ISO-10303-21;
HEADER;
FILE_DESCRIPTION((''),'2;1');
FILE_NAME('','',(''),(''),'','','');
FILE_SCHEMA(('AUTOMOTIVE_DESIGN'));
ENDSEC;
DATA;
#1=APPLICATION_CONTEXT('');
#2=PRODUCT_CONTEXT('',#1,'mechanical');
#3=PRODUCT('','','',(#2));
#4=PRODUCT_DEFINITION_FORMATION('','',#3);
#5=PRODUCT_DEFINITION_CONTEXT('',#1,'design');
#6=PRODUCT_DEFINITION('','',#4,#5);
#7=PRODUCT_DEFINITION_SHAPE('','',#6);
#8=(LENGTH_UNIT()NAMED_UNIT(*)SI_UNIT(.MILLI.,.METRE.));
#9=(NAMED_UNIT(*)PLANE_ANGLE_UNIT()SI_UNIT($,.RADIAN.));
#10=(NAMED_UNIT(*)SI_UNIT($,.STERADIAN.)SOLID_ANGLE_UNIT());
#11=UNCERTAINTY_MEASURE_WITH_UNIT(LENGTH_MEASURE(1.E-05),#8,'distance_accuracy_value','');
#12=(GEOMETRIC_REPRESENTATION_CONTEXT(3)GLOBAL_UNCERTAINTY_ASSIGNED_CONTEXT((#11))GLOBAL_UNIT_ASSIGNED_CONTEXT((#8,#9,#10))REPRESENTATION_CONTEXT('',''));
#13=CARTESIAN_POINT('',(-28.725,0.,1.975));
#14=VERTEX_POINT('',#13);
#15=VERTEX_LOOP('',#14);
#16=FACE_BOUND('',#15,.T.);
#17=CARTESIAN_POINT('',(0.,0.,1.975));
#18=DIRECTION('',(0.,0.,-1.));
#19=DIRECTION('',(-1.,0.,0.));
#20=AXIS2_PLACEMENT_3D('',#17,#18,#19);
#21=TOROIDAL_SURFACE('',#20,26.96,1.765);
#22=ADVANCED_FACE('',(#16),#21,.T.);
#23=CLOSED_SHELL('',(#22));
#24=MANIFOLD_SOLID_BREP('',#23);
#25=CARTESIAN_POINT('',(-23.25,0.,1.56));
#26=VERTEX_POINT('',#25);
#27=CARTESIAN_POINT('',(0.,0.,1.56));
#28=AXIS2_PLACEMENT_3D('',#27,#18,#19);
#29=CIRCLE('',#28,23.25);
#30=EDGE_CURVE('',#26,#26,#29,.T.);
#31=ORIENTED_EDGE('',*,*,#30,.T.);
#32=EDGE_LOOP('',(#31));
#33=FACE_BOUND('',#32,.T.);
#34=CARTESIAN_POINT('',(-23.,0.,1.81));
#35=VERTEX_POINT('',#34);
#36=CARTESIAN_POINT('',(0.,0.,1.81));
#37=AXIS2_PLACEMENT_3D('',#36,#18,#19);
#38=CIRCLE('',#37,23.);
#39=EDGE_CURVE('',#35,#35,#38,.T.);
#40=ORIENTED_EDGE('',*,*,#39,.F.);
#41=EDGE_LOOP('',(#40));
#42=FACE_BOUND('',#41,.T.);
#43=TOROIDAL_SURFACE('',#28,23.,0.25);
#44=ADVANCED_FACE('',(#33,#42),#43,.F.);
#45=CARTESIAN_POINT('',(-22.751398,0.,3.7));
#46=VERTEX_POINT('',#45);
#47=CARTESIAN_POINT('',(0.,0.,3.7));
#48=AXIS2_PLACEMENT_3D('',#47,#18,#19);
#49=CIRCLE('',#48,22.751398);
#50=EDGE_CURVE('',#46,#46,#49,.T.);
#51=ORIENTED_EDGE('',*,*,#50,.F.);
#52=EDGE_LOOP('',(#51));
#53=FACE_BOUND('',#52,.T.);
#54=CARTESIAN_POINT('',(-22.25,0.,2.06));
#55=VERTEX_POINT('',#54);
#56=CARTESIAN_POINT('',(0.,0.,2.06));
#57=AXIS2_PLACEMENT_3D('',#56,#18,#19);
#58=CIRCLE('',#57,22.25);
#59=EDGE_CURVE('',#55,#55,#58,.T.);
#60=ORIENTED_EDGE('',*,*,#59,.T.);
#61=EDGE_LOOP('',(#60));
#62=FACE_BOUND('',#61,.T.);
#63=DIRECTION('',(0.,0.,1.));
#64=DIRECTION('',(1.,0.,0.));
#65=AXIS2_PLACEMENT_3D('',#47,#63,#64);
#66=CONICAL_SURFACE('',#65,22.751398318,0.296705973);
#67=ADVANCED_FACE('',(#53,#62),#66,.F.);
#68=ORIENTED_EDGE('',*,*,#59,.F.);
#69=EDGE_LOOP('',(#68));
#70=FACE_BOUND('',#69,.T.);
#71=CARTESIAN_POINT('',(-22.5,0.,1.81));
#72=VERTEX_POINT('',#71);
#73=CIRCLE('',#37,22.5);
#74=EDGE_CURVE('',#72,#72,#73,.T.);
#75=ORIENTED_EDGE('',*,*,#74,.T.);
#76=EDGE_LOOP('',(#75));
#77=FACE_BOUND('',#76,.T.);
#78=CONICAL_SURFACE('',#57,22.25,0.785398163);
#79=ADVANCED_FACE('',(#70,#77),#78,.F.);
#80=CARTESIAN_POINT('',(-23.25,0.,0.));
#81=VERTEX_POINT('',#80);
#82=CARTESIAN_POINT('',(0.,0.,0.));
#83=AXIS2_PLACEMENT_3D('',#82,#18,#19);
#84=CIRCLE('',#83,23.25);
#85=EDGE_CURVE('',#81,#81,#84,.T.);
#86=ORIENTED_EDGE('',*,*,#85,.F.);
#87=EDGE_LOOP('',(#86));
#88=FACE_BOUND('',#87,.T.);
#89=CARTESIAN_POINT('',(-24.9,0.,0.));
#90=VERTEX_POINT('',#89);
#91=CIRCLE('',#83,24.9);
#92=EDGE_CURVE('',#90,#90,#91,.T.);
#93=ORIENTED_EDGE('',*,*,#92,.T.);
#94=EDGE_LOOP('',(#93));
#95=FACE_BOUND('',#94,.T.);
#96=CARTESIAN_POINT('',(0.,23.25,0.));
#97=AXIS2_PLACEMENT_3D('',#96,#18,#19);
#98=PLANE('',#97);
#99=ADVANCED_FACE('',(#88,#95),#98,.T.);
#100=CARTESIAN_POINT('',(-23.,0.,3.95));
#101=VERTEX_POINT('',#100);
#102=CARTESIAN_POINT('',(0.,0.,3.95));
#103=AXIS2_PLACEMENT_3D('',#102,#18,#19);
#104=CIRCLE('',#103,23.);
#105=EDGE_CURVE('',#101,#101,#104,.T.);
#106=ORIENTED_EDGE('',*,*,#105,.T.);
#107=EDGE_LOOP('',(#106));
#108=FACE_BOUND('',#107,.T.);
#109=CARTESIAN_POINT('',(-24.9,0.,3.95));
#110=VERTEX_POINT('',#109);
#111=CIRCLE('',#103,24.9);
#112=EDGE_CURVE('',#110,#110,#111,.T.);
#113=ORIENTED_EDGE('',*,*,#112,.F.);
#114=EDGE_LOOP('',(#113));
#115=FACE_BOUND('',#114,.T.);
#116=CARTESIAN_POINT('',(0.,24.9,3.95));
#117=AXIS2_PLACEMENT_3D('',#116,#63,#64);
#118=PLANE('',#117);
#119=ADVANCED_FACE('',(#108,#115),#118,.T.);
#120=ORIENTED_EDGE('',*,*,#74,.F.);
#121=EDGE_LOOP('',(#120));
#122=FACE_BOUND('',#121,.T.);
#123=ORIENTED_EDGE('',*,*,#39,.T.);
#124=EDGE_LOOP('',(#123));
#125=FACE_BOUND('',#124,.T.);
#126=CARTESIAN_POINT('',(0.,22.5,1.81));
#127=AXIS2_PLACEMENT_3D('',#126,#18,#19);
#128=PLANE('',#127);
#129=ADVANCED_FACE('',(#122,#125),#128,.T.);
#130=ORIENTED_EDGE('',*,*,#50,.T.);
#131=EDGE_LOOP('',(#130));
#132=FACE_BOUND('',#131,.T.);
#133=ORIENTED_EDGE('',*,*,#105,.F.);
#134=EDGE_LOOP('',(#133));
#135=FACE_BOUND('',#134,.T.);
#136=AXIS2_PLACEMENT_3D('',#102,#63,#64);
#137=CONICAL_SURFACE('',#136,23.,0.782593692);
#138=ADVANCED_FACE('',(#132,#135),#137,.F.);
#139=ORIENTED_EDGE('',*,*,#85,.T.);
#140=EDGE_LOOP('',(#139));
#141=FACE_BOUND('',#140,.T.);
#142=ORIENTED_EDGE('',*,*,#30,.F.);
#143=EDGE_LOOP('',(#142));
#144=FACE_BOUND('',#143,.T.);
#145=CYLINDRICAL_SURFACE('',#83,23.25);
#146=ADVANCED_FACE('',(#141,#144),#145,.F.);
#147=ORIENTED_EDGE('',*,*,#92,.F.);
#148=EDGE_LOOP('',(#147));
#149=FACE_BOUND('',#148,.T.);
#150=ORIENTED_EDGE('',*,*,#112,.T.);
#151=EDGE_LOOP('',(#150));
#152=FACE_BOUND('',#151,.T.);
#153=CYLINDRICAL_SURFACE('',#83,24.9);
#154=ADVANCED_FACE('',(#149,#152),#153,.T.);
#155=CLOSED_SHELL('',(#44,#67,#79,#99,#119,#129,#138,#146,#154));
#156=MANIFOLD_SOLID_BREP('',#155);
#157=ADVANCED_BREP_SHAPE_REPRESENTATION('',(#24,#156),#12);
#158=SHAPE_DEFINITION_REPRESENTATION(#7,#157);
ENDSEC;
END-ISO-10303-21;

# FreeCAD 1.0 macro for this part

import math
import FreeCAD as App
import Part
import Sketcher

V = App.Vector
Q = App.Units.Quantity

doc = App.newDocument("Part")
params = doc.addObject("Spreadsheet::Sheet", "Params")
for row, (alias, value) in enumerate([
    ("sketch1_radius", "0.25 mm"),
    ("sketch1_width", "1.9 mm"),
    ("sketch1_width2", "0.5 mm"),
    ("sketch1_height", "3.95 mm"),
    ("sketch1_height2", "1.56 mm"),
    ("revolution_angle", "360 deg"),
    ("sketch2_diameter", "3.53 mm"),
    ("revolution2_angle", "360 deg"),
], start=1):
    params.set(f"A{row}", alias)
    params.set(f"B{row}", "=" + value)
    params.setAlias(f"B{row}", alias)

body = doc.addObject("PartDesign::Body", "Body")

# Sketch on YZ plane
sketch1 = doc.addObject("Sketcher::SketchObject", "Sketch")
body.addObject(sketch1)
sketch1.AttachmentSupport = (doc.YZ_Plane, [""])
sketch1.MapMode = "FlatFace"
sketch1.addGeometry(Part.LineSegment(V(23.25, 0, 0), V(24.9, 0, 0)), False)
sketch1.addGeometry(Part.LineSegment(V(24.9, 0, 0), V(24.9, 3.95, 0)), False)
sketch1.addGeometry(Part.LineSegment(V(24.9, 3.95, 0), V(23, 3.95, 0)), False)
sketch1.addGeometry(Part.LineSegment(V(23, 3.95, 0), V(22.75, 3.7, 0)), False)
sketch1.addGeometry(Part.LineSegment(V(22.75, 3.7, 0), V(22.25, 2.06, 0)), False)
sketch1.addGeometry(Part.LineSegment(V(22.25, 2.06, 0), V(22.5, 1.81, 0)), False)
sketch1.addGeometry(Part.LineSegment(V(22.5, 1.81, 0), V(23, 1.81, 0)), False)
sketch1.addGeometry(Part.ArcOfCircle(Part.Circle(V(23, 1.56, 0), V(0, 0, 1), 0.25), math.radians(0), math.radians(90)), False)
sketch1.addGeometry(Part.LineSegment(V(23.25, 1.56, 0), V(23.25, 0, 0)), False)
sketch1.addConstraint(Sketcher.Constraint("Coincident", 0, 2, 1, 1))
sketch1.addConstraint(Sketcher.Constraint("Coincident", 1, 2, 2, 1))
sketch1.addConstraint(Sketcher.Constraint("Coincident", 2, 2, 3, 1))
sketch1.addConstraint(Sketcher.Constraint("Coincident", 3, 2, 4, 1))
sketch1.addConstraint(Sketcher.Constraint("Coincident", 4, 2, 5, 1))
sketch1.addConstraint(Sketcher.Constraint("Coincident", 5, 2, 6, 1))
sketch1.addConstraint(Sketcher.Constraint("Tangent", 6, 2, 7, 2))
sketch1.addConstraint(Sketcher.Constraint("Tangent", 7, 1, 8, 1))
sketch1.addConstraint(Sketcher.Constraint("Coincident", 8, 2, 0, 1))
sketch1.addConstraint(Sketcher.Constraint("Horizontal", 0))
sketch1.addConstraint(Sketcher.Constraint("Vertical", 1))
sketch1.addConstraint(Sketcher.Constraint("Horizontal", 2))
sketch1.addConstraint(Sketcher.Constraint("Horizontal", 6))
sketch1.addConstraint(Sketcher.Constraint("Vertical", 8))
sketch1.addConstraint(Sketcher.Constraint("PointOnObject", 0, 2, -1))
sketch1.addConstraint(Sketcher.Constraint("Vertical", 7, 3, 2, 2))
sketch1.addConstraint(Sketcher.Constraint("Angle", 4, Q("-107 deg")))
sketch1.addConstraint(Sketcher.Constraint("Angle", 5, Q("-45 deg")))
sketch1.addConstraint(Sketcher.Constraint("Radius", 7, 0.25))
sketch1.addConstraint(Sketcher.Constraint("DistanceX", 2, 2, 2, 1, 1.9))
sketch1.addConstraint(Sketcher.Constraint("DistanceX", 6, 1, 6, 2, 0.5))
sketch1.addConstraint(Sketcher.Constraint("DistanceX", -1, 1, 7, 3, 23.0))
sketch1.addConstraint(Sketcher.Constraint("DistanceX", 4, 2, 7, 1, 1.0))
sketch1.addConstraint(Sketcher.Constraint("DistanceY", 1, 1, 1, 2, 3.95))
sketch1.addConstraint(Sketcher.Constraint("DistanceY", 8, 2, 8, 1, 1.56))
sketch1.addConstraint(Sketcher.Constraint("DistanceY", -1, 1, 3, 2, 3.7))
sketch1.setExpression("Constraints[18]", "Params.sketch1_radius")
sketch1.setExpression("Constraints[19]", "Params.sketch1_width")
sketch1.setExpression("Constraints[20]", "Params.sketch1_width2")
sketch1.setExpression("Constraints[23]", "Params.sketch1_height")
sketch1.setExpression("Constraints[24]", "Params.sketch1_height2")
revolution = doc.addObject("PartDesign::Revolution", "Revolution")
body.addObject(revolution)
revolution.Profile = sketch1
revolution.ReferenceAxis = (sketch1, ["V_Axis"])
revolution.setExpression("Angle", "Params.revolution_angle")
body2 = doc.addObject("PartDesign::Body", "Body001")

# Sketch on YZ plane
sketch2 = doc.addObject("Sketcher::SketchObject", "Sketch001")
body2.addObject(sketch2)
sketch2.AttachmentSupport = (doc.getObject("YZ_Plane001"), [""])
sketch2.MapMode = "FlatFace"
sketch2.addGeometry(Part.Circle(V(27, 2, 0), V(0, 0, 1), 1.8), False)
sketch2.addConstraint(Sketcher.Constraint("Diameter", 0, 3.53))
sketch2.addConstraint(Sketcher.Constraint("DistanceX", -1, 1, 0, 3, 26.96))
sketch2.addConstraint(Sketcher.Constraint("DistanceY", -1, 1, 0, 3, 1.975))
sketch2.setExpression("Constraints[0]", "Params.sketch2_diameter")
revolution2 = doc.addObject("PartDesign::Revolution", "Revolution001")
body2.addObject(revolution2)
revolution2.Profile = sketch2
revolution2.ReferenceAxis = (sketch2, ["V_Axis"])
revolution2.setExpression("Angle", "Params.revolution2_angle")

doc.recompute()
